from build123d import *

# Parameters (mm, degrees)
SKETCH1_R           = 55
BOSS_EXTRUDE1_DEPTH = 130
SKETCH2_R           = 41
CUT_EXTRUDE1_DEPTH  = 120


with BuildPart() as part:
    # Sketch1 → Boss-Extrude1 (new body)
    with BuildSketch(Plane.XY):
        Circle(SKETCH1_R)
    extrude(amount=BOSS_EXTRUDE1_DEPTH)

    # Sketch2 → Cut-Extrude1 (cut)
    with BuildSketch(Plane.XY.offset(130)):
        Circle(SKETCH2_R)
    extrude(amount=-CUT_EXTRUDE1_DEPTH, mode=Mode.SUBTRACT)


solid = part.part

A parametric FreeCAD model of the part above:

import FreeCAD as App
import Part
import Sketcher
Q = App.Units.Quantity

doc = App.newDocument("Part")
body = doc.addObject("PartDesign::Body", "Body")

# Sketch on XY plane
sketch1 = doc.addObject("Sketcher::SketchObject", "Sketch")
body.addObject(sketch1)
sketch1.AttachmentSupport = (doc.XY_Plane, [""])
sketch1.MapMode = "FlatFace"
sketch1.addGeometry(Part.Circle(App.Vector(0, 0, 0), App.Vector(0, 0, 1), 55), False)
sketch1.addConstraint(Sketcher.Constraint("Coincident", 0, 3, -1, 1))
sketch1.addConstraint(Sketcher.Constraint("Diameter", 0, Q("110 mm")))
pad1 = doc.addObject("PartDesign::Pad", "Pad")
body.addObject(pad1)
pad1.Profile = sketch1
pad1.Length = 130

# Sketch on XY plane
sketch2 = doc.addObject("Sketcher::SketchObject", "Sketch001")
body.addObject(sketch2)
sketch2.AttachmentSupport = (doc.XY_Plane, [""])
sketch2.MapMode = "FlatFace"
sketch2.AttachmentOffset = App.Placement(App.Vector(0, 0, 130), App.Rotation())
sketch2.addGeometry(Part.Circle(App.Vector(0, 0, 0), App.Vector(0, 0, 1), 41), False)
sketch2.addConstraint(Sketcher.Constraint("Coincident", 0, 3, -1, 1))
sketch2.addConstraint(Sketcher.Constraint("Diameter", 0, Q("82 mm")))
pocket1 = doc.addObject("PartDesign::Pocket", "Pocket")
body.addObject(pocket1)
pocket1.Profile = sketch2
pocket1.Length = 120

doc.recompute()
